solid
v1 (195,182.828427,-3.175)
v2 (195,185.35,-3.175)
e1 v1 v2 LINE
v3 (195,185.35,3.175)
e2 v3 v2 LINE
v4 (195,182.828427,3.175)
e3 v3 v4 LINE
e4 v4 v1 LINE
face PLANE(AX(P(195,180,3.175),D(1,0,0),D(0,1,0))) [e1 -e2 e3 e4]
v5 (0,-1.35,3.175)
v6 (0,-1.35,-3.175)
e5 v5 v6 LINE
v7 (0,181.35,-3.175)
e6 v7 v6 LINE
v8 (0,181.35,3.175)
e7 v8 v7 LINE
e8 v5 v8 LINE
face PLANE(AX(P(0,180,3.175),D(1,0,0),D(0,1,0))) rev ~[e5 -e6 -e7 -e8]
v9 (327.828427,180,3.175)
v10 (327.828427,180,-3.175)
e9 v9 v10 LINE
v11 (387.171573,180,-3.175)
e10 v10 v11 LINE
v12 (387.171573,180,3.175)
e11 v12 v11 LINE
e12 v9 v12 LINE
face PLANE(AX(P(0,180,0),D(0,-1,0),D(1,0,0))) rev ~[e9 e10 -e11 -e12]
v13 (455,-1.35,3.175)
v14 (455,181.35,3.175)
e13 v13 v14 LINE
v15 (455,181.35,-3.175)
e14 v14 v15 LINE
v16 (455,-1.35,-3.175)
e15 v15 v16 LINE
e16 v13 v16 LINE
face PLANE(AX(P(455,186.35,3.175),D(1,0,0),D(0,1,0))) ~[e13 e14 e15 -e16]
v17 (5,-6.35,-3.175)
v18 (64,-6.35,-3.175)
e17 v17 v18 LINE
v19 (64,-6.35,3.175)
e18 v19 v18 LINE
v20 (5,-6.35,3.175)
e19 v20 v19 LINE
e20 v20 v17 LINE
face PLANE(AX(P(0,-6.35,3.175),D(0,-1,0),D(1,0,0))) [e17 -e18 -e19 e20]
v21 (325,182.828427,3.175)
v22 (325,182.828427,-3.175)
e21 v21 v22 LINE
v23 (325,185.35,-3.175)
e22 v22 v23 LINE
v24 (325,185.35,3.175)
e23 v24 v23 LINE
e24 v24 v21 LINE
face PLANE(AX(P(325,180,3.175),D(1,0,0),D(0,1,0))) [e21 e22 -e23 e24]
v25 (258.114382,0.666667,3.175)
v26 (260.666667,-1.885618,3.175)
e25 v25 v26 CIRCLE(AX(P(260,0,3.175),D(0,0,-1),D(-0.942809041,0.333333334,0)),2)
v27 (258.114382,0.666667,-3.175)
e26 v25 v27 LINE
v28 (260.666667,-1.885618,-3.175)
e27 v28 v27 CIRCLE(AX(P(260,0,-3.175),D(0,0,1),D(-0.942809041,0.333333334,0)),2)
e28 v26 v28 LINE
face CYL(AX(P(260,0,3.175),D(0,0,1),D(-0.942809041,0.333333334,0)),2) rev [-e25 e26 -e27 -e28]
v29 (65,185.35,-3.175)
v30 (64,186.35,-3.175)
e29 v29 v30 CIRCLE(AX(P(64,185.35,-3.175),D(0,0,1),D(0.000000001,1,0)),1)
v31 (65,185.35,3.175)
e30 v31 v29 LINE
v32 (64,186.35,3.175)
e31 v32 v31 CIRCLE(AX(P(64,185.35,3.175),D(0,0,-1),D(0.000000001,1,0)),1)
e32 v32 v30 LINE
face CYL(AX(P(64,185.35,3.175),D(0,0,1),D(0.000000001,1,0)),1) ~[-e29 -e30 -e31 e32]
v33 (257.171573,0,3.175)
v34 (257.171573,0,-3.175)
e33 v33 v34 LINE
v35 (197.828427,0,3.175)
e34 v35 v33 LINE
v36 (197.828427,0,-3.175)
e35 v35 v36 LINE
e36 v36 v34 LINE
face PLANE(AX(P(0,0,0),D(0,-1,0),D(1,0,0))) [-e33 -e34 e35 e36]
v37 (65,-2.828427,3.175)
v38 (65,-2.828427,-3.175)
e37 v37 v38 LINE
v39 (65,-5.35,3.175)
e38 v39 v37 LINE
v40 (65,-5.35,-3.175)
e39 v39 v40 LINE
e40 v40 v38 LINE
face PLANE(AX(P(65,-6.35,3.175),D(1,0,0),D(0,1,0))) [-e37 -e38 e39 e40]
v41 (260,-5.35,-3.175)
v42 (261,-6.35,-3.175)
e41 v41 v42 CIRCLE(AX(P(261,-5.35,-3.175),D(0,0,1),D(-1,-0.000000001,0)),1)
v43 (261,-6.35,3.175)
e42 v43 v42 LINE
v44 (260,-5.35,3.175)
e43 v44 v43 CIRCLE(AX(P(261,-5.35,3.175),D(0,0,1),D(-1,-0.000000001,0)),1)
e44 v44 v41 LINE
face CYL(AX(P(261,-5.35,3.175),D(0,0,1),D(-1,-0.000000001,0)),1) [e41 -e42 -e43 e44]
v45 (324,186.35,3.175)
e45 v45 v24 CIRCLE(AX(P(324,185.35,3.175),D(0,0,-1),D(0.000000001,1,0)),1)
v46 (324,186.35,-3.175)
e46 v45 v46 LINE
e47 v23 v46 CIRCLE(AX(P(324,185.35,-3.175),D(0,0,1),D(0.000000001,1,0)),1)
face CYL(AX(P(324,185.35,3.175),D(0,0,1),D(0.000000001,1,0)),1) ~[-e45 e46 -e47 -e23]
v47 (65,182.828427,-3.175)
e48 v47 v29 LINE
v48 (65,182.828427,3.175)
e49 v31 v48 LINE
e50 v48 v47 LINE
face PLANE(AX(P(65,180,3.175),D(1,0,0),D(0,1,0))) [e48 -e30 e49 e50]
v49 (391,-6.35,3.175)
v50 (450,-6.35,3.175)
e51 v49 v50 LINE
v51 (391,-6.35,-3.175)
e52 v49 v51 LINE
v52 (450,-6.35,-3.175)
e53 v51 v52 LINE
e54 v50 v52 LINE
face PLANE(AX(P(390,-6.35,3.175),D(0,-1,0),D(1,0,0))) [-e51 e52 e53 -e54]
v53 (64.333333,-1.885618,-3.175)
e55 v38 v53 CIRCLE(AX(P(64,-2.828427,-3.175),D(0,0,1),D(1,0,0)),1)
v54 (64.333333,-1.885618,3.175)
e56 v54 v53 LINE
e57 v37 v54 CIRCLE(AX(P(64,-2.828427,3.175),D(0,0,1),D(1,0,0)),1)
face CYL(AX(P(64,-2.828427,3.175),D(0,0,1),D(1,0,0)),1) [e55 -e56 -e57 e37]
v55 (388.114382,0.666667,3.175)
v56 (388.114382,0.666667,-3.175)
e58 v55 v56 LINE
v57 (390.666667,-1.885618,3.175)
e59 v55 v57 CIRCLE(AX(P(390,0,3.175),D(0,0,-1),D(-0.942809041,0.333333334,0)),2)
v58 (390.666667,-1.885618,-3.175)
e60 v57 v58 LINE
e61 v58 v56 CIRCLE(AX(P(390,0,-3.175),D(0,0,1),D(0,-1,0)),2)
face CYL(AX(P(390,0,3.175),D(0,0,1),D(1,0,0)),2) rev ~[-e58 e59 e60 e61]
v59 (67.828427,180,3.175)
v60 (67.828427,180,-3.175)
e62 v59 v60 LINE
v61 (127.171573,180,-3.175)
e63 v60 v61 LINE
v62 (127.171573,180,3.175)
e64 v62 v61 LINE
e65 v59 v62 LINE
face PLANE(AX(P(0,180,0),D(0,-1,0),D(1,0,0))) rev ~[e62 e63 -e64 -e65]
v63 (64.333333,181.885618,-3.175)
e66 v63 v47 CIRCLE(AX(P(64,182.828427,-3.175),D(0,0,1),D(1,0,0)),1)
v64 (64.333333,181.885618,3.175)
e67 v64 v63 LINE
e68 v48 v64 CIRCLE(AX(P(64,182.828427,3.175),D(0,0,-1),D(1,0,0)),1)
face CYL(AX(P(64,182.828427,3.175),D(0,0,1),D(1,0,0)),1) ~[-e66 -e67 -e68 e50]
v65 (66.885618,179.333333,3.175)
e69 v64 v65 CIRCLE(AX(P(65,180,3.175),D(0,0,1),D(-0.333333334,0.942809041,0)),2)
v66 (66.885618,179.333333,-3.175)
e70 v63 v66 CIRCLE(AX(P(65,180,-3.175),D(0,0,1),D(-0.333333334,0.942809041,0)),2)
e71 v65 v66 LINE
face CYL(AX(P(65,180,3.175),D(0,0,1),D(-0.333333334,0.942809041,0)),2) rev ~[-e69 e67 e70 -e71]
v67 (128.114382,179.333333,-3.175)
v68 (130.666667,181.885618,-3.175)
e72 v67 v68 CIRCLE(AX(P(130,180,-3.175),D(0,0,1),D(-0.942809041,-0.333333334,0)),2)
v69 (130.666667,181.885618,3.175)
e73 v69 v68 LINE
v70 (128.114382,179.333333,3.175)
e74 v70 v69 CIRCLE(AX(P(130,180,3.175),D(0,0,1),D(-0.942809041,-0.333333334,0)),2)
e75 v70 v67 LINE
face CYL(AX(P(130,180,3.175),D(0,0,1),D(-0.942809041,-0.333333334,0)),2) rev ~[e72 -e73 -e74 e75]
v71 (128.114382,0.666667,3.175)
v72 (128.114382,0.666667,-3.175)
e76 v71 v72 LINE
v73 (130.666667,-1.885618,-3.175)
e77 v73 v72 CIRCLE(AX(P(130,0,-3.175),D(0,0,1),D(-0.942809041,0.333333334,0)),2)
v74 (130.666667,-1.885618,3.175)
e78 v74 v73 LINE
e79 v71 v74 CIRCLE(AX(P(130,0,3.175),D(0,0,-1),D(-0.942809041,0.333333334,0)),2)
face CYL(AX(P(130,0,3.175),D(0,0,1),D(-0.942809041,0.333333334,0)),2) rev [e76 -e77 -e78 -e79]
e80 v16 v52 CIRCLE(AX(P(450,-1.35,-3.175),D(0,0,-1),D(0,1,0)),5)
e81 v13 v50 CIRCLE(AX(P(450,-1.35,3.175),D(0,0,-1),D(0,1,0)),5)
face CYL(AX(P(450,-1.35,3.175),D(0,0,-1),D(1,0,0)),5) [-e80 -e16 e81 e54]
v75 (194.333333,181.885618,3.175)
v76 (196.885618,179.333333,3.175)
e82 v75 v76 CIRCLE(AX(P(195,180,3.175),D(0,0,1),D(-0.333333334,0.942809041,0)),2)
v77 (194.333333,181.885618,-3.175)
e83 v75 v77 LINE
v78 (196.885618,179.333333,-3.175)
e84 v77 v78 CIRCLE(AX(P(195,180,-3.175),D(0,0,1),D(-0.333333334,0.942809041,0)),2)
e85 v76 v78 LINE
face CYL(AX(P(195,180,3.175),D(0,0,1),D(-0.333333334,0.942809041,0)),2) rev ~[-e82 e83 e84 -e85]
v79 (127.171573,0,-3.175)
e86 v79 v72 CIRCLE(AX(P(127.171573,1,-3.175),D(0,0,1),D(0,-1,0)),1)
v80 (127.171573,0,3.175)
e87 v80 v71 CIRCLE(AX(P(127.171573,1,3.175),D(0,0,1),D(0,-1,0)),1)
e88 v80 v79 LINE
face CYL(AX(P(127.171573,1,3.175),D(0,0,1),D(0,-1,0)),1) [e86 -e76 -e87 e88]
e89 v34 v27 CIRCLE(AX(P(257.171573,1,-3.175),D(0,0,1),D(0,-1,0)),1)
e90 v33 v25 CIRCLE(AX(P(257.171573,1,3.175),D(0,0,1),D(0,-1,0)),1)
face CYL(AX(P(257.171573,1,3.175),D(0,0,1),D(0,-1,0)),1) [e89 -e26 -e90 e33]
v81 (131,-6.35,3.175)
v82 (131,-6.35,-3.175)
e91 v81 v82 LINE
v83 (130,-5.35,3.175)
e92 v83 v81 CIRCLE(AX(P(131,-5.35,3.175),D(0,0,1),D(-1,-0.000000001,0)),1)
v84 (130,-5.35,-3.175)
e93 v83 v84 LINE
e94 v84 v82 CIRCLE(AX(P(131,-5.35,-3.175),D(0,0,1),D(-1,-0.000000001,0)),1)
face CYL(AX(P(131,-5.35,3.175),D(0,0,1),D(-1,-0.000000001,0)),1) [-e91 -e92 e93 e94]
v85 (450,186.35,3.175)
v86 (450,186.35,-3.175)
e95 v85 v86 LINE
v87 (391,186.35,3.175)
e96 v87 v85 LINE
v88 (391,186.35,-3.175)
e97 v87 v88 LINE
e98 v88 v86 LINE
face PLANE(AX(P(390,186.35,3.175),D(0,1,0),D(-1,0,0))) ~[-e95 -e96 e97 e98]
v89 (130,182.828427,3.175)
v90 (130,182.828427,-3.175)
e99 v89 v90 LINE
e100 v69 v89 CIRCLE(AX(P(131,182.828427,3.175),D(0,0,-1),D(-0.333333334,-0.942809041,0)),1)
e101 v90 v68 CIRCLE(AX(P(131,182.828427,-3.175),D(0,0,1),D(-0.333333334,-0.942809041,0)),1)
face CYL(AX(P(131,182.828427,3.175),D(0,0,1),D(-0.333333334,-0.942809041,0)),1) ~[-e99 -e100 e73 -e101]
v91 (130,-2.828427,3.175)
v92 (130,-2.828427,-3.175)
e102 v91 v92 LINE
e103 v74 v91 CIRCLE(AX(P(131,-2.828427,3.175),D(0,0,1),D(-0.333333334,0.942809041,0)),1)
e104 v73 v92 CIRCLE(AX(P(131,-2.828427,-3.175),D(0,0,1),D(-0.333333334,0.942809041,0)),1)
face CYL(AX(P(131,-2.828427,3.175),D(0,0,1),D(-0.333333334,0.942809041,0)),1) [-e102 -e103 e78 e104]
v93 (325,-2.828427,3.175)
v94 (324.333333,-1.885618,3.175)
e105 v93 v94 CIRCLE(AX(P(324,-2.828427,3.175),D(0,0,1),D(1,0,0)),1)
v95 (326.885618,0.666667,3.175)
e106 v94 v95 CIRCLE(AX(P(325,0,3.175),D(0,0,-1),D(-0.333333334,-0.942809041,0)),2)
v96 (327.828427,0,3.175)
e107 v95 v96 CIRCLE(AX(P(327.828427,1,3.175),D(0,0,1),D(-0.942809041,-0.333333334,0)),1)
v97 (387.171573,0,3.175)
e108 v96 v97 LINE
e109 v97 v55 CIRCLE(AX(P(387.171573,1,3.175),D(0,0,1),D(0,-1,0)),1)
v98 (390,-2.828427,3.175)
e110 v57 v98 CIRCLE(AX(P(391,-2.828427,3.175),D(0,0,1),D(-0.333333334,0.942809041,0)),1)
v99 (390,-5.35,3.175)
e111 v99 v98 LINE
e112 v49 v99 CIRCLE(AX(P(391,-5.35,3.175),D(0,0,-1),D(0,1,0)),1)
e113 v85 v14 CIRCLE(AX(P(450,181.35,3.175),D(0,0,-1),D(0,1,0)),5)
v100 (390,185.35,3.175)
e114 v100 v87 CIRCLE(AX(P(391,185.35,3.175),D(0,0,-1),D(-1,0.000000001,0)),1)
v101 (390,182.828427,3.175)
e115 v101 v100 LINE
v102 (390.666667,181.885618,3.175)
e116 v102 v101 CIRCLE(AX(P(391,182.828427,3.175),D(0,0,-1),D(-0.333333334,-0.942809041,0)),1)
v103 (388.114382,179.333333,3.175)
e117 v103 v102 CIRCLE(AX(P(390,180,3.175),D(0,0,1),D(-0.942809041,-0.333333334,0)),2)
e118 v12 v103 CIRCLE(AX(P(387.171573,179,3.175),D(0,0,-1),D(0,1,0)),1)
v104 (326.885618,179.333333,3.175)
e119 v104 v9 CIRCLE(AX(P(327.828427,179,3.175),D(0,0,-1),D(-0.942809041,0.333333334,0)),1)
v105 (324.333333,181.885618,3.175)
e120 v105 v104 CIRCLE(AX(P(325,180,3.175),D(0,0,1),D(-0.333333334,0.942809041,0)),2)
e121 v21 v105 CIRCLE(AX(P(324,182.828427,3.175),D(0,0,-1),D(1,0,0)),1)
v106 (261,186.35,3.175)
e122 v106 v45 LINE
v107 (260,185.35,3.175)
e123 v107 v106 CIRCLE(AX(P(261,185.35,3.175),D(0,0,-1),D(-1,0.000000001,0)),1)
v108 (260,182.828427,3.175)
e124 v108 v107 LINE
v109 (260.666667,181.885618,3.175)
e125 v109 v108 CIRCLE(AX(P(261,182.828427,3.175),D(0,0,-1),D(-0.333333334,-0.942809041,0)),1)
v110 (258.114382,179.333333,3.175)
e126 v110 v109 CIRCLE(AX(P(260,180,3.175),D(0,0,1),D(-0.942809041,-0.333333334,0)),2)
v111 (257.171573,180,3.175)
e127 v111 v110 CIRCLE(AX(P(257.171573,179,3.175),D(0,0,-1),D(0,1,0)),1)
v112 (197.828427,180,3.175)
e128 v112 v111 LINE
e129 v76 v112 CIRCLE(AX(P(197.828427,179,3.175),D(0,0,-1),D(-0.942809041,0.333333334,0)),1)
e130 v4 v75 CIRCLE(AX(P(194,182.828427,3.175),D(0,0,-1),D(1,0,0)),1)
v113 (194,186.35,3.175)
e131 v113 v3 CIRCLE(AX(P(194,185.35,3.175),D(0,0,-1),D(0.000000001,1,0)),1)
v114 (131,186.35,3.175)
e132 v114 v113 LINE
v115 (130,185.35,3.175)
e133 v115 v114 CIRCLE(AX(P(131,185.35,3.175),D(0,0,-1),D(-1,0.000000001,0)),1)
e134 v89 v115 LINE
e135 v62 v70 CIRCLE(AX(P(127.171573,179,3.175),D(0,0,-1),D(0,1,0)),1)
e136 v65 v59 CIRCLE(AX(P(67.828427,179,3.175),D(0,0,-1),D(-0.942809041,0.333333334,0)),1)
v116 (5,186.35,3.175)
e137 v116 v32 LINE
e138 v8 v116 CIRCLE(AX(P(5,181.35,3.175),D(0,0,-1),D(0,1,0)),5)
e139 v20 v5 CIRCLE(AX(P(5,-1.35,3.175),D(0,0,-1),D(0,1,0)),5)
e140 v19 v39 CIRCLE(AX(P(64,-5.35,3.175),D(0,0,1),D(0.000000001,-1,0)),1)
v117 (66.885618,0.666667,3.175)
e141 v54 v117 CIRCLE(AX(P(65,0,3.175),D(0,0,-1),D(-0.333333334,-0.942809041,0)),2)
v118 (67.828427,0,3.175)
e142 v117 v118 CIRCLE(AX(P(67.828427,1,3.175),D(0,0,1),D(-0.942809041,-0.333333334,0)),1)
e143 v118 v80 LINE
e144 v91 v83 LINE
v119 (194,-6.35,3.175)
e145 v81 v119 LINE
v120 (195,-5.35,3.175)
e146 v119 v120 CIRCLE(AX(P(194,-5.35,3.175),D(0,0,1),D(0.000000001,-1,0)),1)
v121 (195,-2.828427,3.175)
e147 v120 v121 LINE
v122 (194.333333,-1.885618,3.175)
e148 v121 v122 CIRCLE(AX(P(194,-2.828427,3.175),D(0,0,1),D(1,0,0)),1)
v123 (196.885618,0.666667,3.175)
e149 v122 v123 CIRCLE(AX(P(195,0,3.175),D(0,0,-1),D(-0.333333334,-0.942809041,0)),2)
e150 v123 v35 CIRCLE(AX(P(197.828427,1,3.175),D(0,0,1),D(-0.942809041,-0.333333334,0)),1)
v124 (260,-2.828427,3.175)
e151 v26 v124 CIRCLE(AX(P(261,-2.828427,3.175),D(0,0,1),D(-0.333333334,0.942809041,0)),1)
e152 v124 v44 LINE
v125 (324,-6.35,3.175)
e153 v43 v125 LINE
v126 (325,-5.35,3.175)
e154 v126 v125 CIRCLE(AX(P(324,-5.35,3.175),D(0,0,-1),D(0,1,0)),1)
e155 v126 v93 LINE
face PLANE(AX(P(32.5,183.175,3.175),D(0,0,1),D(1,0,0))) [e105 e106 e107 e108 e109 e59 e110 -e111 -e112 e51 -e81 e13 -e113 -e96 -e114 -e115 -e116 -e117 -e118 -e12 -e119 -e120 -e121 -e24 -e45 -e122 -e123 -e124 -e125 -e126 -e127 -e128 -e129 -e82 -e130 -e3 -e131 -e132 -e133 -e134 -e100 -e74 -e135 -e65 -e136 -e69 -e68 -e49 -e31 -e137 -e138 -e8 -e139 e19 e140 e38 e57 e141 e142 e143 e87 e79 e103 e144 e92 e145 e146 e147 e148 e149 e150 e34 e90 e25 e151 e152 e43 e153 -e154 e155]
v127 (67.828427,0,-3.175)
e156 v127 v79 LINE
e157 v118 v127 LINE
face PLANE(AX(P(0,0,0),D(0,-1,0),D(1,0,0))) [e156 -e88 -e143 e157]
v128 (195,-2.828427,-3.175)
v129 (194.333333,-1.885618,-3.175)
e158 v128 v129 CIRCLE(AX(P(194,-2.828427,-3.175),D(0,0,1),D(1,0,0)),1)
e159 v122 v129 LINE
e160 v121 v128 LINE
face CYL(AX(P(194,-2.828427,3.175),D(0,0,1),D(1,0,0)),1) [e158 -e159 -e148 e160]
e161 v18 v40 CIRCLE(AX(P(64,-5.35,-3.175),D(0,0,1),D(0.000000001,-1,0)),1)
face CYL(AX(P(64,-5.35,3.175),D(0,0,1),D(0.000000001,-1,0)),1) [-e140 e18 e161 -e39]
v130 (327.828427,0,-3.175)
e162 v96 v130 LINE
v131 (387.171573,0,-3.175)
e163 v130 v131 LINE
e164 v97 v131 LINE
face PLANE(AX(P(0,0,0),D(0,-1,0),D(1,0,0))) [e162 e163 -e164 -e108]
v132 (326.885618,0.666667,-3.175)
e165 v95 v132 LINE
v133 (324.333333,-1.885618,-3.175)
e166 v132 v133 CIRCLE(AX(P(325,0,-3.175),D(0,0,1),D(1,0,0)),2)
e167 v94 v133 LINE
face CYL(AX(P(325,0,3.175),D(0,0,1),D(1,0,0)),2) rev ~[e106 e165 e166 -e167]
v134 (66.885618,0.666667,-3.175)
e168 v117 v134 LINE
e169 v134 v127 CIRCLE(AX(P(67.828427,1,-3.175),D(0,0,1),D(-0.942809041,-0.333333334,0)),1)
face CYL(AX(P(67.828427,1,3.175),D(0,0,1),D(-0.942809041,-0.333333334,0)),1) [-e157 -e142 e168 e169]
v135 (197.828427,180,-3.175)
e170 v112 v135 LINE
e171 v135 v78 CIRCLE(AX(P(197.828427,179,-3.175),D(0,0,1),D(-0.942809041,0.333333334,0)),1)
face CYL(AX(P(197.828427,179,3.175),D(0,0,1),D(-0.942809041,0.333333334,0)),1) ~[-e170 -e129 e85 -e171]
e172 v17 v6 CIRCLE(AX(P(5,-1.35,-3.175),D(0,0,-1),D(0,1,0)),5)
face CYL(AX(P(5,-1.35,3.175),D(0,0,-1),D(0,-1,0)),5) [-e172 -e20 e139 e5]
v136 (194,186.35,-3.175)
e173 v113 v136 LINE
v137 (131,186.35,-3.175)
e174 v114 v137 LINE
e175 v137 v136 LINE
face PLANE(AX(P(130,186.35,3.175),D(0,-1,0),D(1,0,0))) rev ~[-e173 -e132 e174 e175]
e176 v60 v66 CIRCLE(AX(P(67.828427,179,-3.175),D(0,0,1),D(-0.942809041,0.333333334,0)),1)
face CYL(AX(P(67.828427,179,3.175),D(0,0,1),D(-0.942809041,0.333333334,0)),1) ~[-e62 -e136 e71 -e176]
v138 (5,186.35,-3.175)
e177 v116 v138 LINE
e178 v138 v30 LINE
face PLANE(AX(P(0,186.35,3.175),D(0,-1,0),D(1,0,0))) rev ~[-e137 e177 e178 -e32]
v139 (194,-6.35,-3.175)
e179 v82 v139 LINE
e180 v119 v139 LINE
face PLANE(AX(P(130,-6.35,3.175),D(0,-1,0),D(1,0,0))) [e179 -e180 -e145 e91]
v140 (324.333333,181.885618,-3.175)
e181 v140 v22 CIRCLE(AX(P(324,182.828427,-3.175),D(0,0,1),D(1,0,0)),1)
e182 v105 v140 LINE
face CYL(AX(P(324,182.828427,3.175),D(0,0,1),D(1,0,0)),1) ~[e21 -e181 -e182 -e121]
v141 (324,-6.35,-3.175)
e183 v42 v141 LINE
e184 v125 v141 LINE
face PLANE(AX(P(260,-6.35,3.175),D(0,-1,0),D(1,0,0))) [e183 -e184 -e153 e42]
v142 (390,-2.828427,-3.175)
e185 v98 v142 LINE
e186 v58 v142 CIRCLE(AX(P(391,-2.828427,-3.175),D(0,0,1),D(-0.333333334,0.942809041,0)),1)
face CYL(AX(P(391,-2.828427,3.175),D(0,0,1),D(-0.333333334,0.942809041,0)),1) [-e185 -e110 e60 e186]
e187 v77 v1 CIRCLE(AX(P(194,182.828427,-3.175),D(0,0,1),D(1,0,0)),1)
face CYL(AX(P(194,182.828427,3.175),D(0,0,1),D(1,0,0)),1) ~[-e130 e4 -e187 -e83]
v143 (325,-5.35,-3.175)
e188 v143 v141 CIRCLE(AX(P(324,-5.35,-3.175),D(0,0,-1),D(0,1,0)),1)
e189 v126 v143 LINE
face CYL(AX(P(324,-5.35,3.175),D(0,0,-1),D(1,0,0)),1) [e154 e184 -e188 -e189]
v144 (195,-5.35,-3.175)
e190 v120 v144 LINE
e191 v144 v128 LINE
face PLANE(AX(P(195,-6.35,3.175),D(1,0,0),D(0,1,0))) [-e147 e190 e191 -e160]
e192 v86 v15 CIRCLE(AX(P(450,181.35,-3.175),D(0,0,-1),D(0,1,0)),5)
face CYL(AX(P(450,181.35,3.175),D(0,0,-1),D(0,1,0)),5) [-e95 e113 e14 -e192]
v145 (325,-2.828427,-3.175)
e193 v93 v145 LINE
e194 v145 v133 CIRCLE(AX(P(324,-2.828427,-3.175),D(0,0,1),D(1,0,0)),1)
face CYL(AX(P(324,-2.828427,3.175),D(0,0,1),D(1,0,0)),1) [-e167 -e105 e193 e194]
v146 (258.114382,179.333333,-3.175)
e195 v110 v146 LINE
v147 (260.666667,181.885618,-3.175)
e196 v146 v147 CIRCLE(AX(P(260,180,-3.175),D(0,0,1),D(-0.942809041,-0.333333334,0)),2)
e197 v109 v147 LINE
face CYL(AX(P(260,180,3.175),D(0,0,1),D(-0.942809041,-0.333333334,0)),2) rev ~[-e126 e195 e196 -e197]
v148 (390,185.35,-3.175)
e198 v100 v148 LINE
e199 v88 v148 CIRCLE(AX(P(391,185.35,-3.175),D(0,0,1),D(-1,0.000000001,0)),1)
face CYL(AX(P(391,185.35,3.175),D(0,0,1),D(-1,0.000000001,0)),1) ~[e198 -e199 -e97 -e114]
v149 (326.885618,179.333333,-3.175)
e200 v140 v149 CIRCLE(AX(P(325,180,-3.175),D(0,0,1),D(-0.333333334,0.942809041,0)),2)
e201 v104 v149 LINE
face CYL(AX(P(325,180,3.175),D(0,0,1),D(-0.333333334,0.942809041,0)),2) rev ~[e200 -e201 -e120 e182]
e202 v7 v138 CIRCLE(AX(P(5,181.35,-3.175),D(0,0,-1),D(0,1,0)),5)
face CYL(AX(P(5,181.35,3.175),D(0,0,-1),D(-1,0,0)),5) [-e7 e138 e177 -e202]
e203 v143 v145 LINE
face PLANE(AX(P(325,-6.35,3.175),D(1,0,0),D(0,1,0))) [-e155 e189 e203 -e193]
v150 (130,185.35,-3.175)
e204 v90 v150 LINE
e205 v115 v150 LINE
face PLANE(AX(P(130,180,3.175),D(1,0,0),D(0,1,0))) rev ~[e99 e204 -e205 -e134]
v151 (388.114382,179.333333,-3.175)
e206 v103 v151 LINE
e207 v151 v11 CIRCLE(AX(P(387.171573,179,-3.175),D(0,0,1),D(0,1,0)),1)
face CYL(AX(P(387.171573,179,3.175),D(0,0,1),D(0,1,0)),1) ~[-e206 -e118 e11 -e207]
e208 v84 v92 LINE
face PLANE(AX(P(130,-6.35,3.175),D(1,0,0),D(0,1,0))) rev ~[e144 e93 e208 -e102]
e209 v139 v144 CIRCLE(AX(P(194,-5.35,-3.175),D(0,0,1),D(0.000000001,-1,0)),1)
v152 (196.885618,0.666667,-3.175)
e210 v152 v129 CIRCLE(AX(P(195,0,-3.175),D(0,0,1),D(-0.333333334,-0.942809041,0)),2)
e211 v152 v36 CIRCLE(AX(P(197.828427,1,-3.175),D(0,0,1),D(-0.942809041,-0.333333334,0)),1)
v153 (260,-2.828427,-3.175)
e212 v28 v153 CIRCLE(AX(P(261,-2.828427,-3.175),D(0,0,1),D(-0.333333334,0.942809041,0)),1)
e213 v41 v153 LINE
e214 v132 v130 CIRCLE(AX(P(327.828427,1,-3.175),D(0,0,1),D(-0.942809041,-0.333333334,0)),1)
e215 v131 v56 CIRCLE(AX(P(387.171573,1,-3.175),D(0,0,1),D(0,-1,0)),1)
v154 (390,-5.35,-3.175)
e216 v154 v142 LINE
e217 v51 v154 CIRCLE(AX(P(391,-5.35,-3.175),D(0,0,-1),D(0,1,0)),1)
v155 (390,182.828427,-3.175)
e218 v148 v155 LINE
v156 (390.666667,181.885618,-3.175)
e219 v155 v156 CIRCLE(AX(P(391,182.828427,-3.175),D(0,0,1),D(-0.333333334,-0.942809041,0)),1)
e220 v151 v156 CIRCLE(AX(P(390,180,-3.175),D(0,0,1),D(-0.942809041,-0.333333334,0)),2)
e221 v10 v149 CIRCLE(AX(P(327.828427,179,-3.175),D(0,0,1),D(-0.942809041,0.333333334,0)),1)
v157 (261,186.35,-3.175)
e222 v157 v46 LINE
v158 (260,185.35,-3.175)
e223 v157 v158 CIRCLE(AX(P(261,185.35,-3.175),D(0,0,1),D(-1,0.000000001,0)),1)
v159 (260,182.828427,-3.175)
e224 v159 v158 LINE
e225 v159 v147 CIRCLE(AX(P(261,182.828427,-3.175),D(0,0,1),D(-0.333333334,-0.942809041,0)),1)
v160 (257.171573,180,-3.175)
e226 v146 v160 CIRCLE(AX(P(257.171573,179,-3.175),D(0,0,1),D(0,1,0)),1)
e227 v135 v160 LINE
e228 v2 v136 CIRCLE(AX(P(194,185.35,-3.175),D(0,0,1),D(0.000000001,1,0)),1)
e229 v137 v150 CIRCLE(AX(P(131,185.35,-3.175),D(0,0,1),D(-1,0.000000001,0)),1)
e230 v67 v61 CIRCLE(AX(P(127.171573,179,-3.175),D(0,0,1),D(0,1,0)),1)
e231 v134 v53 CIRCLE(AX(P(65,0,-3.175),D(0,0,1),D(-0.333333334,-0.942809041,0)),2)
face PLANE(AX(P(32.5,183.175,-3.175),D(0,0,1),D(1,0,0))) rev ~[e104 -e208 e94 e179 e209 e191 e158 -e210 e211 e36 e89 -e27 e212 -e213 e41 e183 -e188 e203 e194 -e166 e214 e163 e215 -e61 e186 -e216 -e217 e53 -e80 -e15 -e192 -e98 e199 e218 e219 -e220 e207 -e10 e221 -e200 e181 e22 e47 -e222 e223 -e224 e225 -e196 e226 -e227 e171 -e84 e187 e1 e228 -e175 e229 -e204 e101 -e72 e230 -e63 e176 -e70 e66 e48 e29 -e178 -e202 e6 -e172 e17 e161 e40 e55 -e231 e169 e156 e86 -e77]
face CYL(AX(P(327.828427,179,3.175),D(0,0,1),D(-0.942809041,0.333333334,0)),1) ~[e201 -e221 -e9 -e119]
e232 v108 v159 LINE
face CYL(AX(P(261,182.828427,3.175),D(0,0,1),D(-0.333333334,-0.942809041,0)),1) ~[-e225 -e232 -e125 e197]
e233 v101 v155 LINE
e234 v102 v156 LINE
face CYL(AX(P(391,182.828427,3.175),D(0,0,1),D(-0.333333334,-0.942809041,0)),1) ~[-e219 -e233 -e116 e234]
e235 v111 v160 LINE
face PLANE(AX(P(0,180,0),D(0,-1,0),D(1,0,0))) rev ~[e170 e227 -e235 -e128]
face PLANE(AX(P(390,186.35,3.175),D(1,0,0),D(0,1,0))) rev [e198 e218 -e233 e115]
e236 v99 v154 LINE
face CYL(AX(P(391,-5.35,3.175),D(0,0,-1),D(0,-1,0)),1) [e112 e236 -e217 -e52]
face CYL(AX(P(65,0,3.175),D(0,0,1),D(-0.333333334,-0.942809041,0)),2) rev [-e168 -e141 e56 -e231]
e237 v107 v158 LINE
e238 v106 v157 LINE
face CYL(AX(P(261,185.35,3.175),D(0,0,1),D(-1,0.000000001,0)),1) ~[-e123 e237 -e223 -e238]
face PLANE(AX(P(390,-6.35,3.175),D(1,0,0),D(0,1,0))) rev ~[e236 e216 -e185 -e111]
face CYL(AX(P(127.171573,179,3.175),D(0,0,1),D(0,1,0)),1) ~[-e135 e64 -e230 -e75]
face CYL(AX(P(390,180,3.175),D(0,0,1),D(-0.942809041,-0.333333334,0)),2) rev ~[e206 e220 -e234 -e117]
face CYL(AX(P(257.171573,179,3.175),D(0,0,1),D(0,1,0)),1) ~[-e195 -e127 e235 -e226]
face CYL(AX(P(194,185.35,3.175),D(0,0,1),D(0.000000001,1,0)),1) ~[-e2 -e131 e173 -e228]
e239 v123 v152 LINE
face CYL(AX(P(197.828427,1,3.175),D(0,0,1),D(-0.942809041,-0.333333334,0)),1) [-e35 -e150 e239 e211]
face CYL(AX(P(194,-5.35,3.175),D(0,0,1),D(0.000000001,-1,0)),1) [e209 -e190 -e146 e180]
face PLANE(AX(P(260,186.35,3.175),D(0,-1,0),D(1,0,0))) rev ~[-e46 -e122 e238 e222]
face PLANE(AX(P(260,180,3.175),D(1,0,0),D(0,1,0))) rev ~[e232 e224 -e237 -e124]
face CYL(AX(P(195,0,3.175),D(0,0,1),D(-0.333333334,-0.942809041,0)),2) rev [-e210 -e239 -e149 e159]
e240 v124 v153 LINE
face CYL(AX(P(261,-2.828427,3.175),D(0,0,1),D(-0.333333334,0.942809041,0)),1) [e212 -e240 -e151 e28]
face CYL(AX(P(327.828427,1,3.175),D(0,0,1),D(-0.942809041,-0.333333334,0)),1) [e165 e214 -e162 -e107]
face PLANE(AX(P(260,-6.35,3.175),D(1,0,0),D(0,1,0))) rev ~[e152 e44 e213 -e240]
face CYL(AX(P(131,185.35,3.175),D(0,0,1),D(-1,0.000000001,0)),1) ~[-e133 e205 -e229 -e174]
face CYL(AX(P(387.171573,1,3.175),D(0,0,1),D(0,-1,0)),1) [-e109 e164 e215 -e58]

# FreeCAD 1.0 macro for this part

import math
import FreeCAD as App
import Part
import Sketcher
from FreeCAD import Vector
Q = App.Units.Quantity


def edges_at(feature, points):
    """Names of the edges that pass closest to the given points."""
    edges = feature.Shape.Edges
    near = lambda p: min(range(len(edges)), key=lambda i: edges[i].distToShape(Part.Vertex(*p))[0])
    return sorted({f"Edge{near(p) + 1}" for p in points})

doc = App.newDocument("Part")
params = doc.addObject("Spreadsheet::Sheet", "Params")
for row, (alias, value) in enumerate([
    ("sketch1_width", "455 mm"),
    ("sketch1_height", "180 mm"),
    ("pad1_length", "6.35 mm"),
    ("sketch2_width", "65 mm"),
    ("sketch2_height", "6.35 mm"),
    ("pad2_length", "6.35 mm"),
    ("linearpattern_pitch", "130 mm"),
    ("sketch3_width", "65 mm"),
    ("sketch3_height", "6.35 mm"),
    ("pad3_length", "6.35 mm"),
    ("sketch4_width", "65 mm"),
    ("sketch4_height", "6.35 mm"),
    ("pad4_length", "6.35 mm"),
    ("sketch5_width", "65 mm"),
    ("sketch5_height", "6.35 mm"),
    ("pad5_length", "6.35 mm"),
    ("sketch6_diameter", "4 mm"),
    ("fillet_radius", "1 mm"),
    ("sketch7_radius", "1 mm"),
    ("sketch7_radius2", "2 mm"),
    ("sketch7_width", "67 mm"),
    ("linearpattern2_pitch", "130 mm"),
    ("sketch8_radius", "1 mm"),
    ("sketch8_radius2", "2 mm"),
    ("sketch8_width", "67 mm"),
    ("sketch9_radius", "1 mm"),
    ("sketch9_radius2", "2 mm"),
    ("sketch9_width", "67 mm"),
    ("fillet2_radius", "5 mm"),
], start=1):
    params.set(f"A{row}", alias)
    params.set(f"B{row}", "=" + value)
    params.setAlias(f"B{row}", alias)

body = doc.addObject("PartDesign::Body", "Body")

# Sketch on XY plane
sketch1 = doc.addObject("Sketcher::SketchObject", "Sketch")
body.addObject(sketch1)
sketch1.AttachmentSupport = (doc.XY_Plane, [""])
sketch1.MapMode = "FlatFace"
sketch1.addGeometry(Part.LineSegment(Vector(0, 180, 0), Vector(0, 0, 0)), False)
sketch1.addGeometry(Part.LineSegment(Vector(0, 0, 0), Vector(455, 0, 0)), False)
sketch1.addGeometry(Part.LineSegment(Vector(455, 0, 0), Vector(455, 180, 0)), False)
sketch1.addGeometry(Part.LineSegment(Vector(455, 180, 0), Vector(0, 180, 0)), False)
sketch1.addConstraint(Sketcher.Constraint("Coincident", 0, 2, 1, 1))
sketch1.addConstraint(Sketcher.Constraint("Coincident", 1, 2, 2, 1))
sketch1.addConstraint(Sketcher.Constraint("Coincident", 2, 2, 3, 1))
sketch1.addConstraint(Sketcher.Constraint("Coincident", 3, 2, 0, 1))
sketch1.addConstraint(Sketcher.Constraint("Vertical", 0))
sketch1.addConstraint(Sketcher.Constraint("Horizontal", 1))
sketch1.addConstraint(Sketcher.Constraint("Vertical", 2))
sketch1.addConstraint(Sketcher.Constraint("Horizontal", 3))
sketch1.addConstraint(Sketcher.Constraint("Coincident", 0, 2, -1, 1))
sketch1.addConstraint(Sketcher.Constraint("DistanceX", 1, 1, 1, 2, Q("455 mm")))
sketch1.addConstraint(Sketcher.Constraint("DistanceY", 0, 2, 0, 1, Q("180 mm")))
sketch1.setExpression("Constraints[9]", "Params.sketch1_width")
sketch1.setExpression("Constraints[10]", "Params.sketch1_height")
pad1 = doc.addObject("PartDesign::Pad", "Pad")
body.addObject(pad1)
pad1.Profile = sketch1
pad1.setExpression("Length", "Params.pad1_length")
pad1.Midplane = True

# Sketch on XY plane
sketch2 = doc.addObject("Sketcher::SketchObject", "Sketch001")
body.addObject(sketch2)
sketch2.AttachmentSupport = (doc.XY_Plane, [""])
sketch2.MapMode = "FlatFace"
sketch2.AttachmentOffset = App.Placement(Vector(0, 0, 3.175), App.Rotation())
sketch2.addGeometry(Part.LineSegment(Vector(390, 0, 0), Vector(390, -6, 0)), False)
sketch2.addGeometry(Part.LineSegment(Vector(390, -6, 0), Vector(455, -6, 0)), False)
sketch2.addGeometry(Part.LineSegment(Vector(455, -6, 0), Vector(455, 0, 0)), False)
sketch2.addGeometry(Part.LineSegment(Vector(455, 0, 0), Vector(390, 0, 0)), False)
sketch2.addConstraint(Sketcher.Constraint("Coincident", 0, 2, 1, 1))
sketch2.addConstraint(Sketcher.Constraint("Coincident", 1, 2, 2, 1))
sketch2.addConstraint(Sketcher.Constraint("Coincident", 2, 2, 3, 1))
sketch2.addConstraint(Sketcher.Constraint("Coincident", 3, 2, 0, 1))
sketch2.addConstraint(Sketcher.Constraint("Vertical", 0))
sketch2.addConstraint(Sketcher.Constraint("Horizontal", 1))
sketch2.addConstraint(Sketcher.Constraint("Vertical", 2))
sketch2.addConstraint(Sketcher.Constraint("Horizontal", 3))
sketch2.addConstraint(Sketcher.Constraint("PointOnObject", 2, 2, -1))
sketch2.addConstraint(Sketcher.Constraint("DistanceX", 1, 1, 1, 2, Q("65 mm")))
sketch2.addConstraint(Sketcher.Constraint("DistanceX", -1, 1, 0, 2, Q("390 mm")))
sketch2.addConstraint(Sketcher.Constraint("DistanceY", 0, 2, 0, 1, Q("6.35 mm")))
sketch2.setExpression("Constraints[9]", "Params.sketch2_width")
sketch2.setExpression("Constraints[11]", "Params.sketch2_height")
pad2 = doc.addObject("PartDesign::Pad", "Pad001")
body.addObject(pad2)
pad2.Profile = sketch2
pad2.setExpression("Length", "Params.pad2_length")
pad2.Reversed = True
doc.recompute()

linearpattern = doc.addObject("PartDesign::LinearPattern", "LinearPattern")
body.addObject(linearpattern)
linearpattern.Originals = [pad2]
linearpattern.Direction = (doc.X_Axis, [""])
linearpattern.Mode = "offset"
linearpattern.setExpression("Offset", "Params.linearpattern_pitch")
linearpattern.Occurrences = 4
linearpattern.Reversed = True
body.Tip = linearpattern
doc.recompute()

datumplane = doc.addObject("PartDesign::Plane", "DatumPlane")
body.addObject(datumplane)
datumplane.AttachmentSupport = (doc.XZ_Plane, [""])
datumplane.MapMode = "FlatFace"
datumplane.AttachmentOffset = App.Placement(Vector(0, 0, -90), App.Rotation())
mirrored = doc.addObject("PartDesign::Mirrored", "Mirrored")
body.addObject(mirrored)
mirrored.Originals = [pad2]
mirrored.MirrorPlane = (datumplane, [""])
body.Tip = mirrored

# Sketch on XY plane
sketch3 = doc.addObject("Sketcher::SketchObject", "Sketch002")
body.addObject(sketch3)
sketch3.AttachmentSupport = (doc.XY_Plane, [""])
sketch3.MapMode = "FlatFace"
sketch3.AttachmentOffset = App.Placement(Vector(0, 0, 3.175), App.Rotation())
sketch3.addGeometry(Part.LineSegment(Vector(260, 186, 0), Vector(260, 180, 0)), False)
sketch3.addGeometry(Part.LineSegment(Vector(260, 180, 0), Vector(325, 180, 0)), False)
sketch3.addGeometry(Part.LineSegment(Vector(325, 180, 0), Vector(325, 186, 0)), False)
sketch3.addGeometry(Part.LineSegment(Vector(325, 186, 0), Vector(260, 186, 0)), False)
sketch3.addConstraint(Sketcher.Constraint("Coincident", 0, 2, 1, 1))
sketch3.addConstraint(Sketcher.Constraint("Coincident", 1, 2, 2, 1))
sketch3.addConstraint(Sketcher.Constraint("Coincident", 2, 2, 3, 1))
sketch3.addConstraint(Sketcher.Constraint("Coincident", 3, 2, 0, 1))
sketch3.addConstraint(Sketcher.Constraint("Vertical", 0))
sketch3.addConstraint(Sketcher.Constraint("Horizontal", 1))
sketch3.addConstraint(Sketcher.Constraint("Vertical", 2))
sketch3.addConstraint(Sketcher.Constraint("Horizontal", 3))
sketch3.addConstraint(Sketcher.Constraint("DistanceX", 1, 1, 1, 2, Q("65 mm")))
sketch3.addConstraint(Sketcher.Constraint("DistanceX", -1, 1, 0, 2, Q("260 mm")))
sketch3.addConstraint(Sketcher.Constraint("DistanceY", -1, 1, 0, 2, Q("180 mm")))
sketch3.addConstraint(Sketcher.Constraint("DistanceY", 0, 2, 0, 1, Q("6.35 mm")))
sketch3.setExpression("Constraints[8]", "Params.sketch3_width")
sketch3.setExpression("Constraints[11]", "Params.sketch3_height")
pad3 = doc.addObject("PartDesign::Pad", "Pad002")
body.addObject(pad3)
pad3.Profile = sketch3
pad3.setExpression("Length", "Params.pad3_length")
pad3.Reversed = True

# Sketch on XY plane
sketch4 = doc.addObject("Sketcher::SketchObject", "Sketch003")
body.addObject(sketch4)
sketch4.AttachmentSupport = (doc.XY_Plane, [""])
sketch4.MapMode = "FlatFace"
sketch4.AttachmentOffset = App.Placement(Vector(0, 0, 3.175), App.Rotation())
sketch4.addGeometry(Part.LineSegment(Vector(130, 186, 0), Vector(130, 180, 0)), False)
sketch4.addGeometry(Part.LineSegment(Vector(130, 180, 0), Vector(195, 180, 0)), False)
sketch4.addGeometry(Part.LineSegment(Vector(195, 180, 0), Vector(195, 186, 0)), False)
sketch4.addGeometry(Part.LineSegment(Vector(195, 186, 0), Vector(130, 186, 0)), False)
sketch4.addConstraint(Sketcher.Constraint("Coincident", 0, 2, 1, 1))
sketch4.addConstraint(Sketcher.Constraint("Coincident", 1, 2, 2, 1))
sketch4.addConstraint(Sketcher.Constraint("Coincident", 2, 2, 3, 1))
sketch4.addConstraint(Sketcher.Constraint("Coincident", 3, 2, 0, 1))
sketch4.addConstraint(Sketcher.Constraint("Vertical", 0))
sketch4.addConstraint(Sketcher.Constraint("Horizontal", 1))
sketch4.addConstraint(Sketcher.Constraint("Vertical", 2))
sketch4.addConstraint(Sketcher.Constraint("Horizontal", 3))
sketch4.addConstraint(Sketcher.Constraint("DistanceX", 1, 1, 1, 2, Q("65 mm")))
sketch4.addConstraint(Sketcher.Constraint("DistanceX", -1, 1, 0, 2, Q("130 mm")))
sketch4.addConstraint(Sketcher.Constraint("DistanceY", -1, 1, 0, 2, Q("180 mm")))
sketch4.addConstraint(Sketcher.Constraint("DistanceY", 0, 2, 0, 1, Q("6.35 mm")))
sketch4.setExpression("Constraints[8]", "Params.sketch4_width")
sketch4.setExpression("Constraints[11]", "Params.sketch4_height")
pad4 = doc.addObject("PartDesign::Pad", "Pad003")
body.addObject(pad4)
pad4.Profile = sketch4
pad4.setExpression("Length", "Params.pad4_length")
pad4.Reversed = True

# Sketch on XY plane
sketch5 = doc.addObject("Sketcher::SketchObject", "Sketch004")
body.addObject(sketch5)
sketch5.AttachmentSupport = (doc.XY_Plane, [""])
sketch5.MapMode = "FlatFace"
sketch5.AttachmentOffset = App.Placement(Vector(0, 0, 3.175), App.Rotation())
sketch5.addGeometry(Part.LineSegment(Vector(0, 186, 0), Vector(0, 180, 0)), False)
sketch5.addGeometry(Part.LineSegment(Vector(0, 180, 0), Vector(65, 180, 0)), False)
sketch5.addGeometry(Part.LineSegment(Vector(65, 180, 0), Vector(65, 186, 0)), False)
sketch5.addGeometry(Part.LineSegment(Vector(65, 186, 0), Vector(0, 186, 0)), False)
sketch5.addConstraint(Sketcher.Constraint("Coincident", 0, 2, 1, 1))
sketch5.addConstraint(Sketcher.Constraint("Coincident", 1, 2, 2, 1))
sketch5.addConstraint(Sketcher.Constraint("Coincident", 2, 2, 3, 1))
sketch5.addConstraint(Sketcher.Constraint("Coincident", 3, 2, 0, 1))
sketch5.addConstraint(Sketcher.Constraint("Vertical", 0))
sketch5.addConstraint(Sketcher.Constraint("Horizontal", 1))
sketch5.addConstraint(Sketcher.Constraint("Vertical", 2))
sketch5.addConstraint(Sketcher.Constraint("Horizontal", 3))
sketch5.addConstraint(Sketcher.Constraint("PointOnObject", 0, 2, -2))
sketch5.addConstraint(Sketcher.Constraint("DistanceX", 1, 1, 1, 2, Q("65 mm")))
sketch5.addConstraint(Sketcher.Constraint("DistanceY", -1, 1, 0, 2, Q("180 mm")))
sketch5.addConstraint(Sketcher.Constraint("DistanceY", 0, 2, 0, 1, Q("6.35 mm")))
sketch5.setExpression("Constraints[9]", "Params.sketch5_width")
sketch5.setExpression("Constraints[11]", "Params.sketch5_height")
pad5 = doc.addObject("PartDesign::Pad", "Pad004")
body.addObject(pad5)
pad5.Profile = sketch5
pad5.setExpression("Length", "Params.pad5_length")
pad5.Reversed = True

# Sketch on XY plane
sketch6 = doc.addObject("Sketcher::SketchObject", "Sketch005")
body.addObject(sketch6)
sketch6.AttachmentSupport = (doc.XY_Plane, [""])
sketch6.MapMode = "FlatFace"
sketch6.AttachmentOffset = App.Placement(Vector(0, 0, 3.175), App.Rotation())
sketch6.addGeometry(Part.Circle(Vector(325, 0, 0), Vector(0, 0, 1), 2), False)
sketch6.addGeometry(Part.Circle(Vector(390, 0, 0), Vector(0, 0, 1), 2), False)
sketch6.addConstraint(Sketcher.Constraint("Equal", 0, 1))
sketch6.addConstraint(Sketcher.Constraint("PointOnObject", 0, 3, -1))
sketch6.addConstraint(Sketcher.Constraint("PointOnObject", 1, 3, -1))
sketch6.addConstraint(Sketcher.Constraint("Diameter", 0, Q("4 mm")))
sketch6.addConstraint(Sketcher.Constraint("DistanceX", -1, 1, 0, 3, Q("325 mm")))
sketch6.addConstraint(Sketcher.Constraint("DistanceX", -1, 1, 1, 3, Q("390 mm")))
sketch6.setExpression("Constraints[3]", "Params.sketch6_diameter")
pocket1 = doc.addObject("PartDesign::Pocket", "Pocket")
body.addObject(pocket1)
pocket1.Profile = sketch6
pocket1.Type = "ThroughAll"
doc.recompute()

fillet = doc.addObject("PartDesign::Fillet", "Fillet")
body.addObject(fillet)
fillet.Base = (pocket1, edges_at(pocket1, [(390, -6.35, 0), (325, -6.35, 0)]))
fillet.setExpression("Radius", "Params.fillet_radius")

# Sketch on XY plane
sketch7 = doc.addObject("Sketcher::SketchObject", "Sketch006")
body.addObject(sketch7)
sketch7.AttachmentSupport = (doc.XY_Plane, [""])
sketch7.MapMode = "FlatFace"
sketch7.AttachmentOffset = App.Placement(Vector(0, 0, 3.175), App.Rotation())
sketch7.addGeometry(Part.LineSegment(Vector(390, -5.3, 0), Vector(390, -2.8, 0)), False)
sketch7.addGeometry(Part.ArcOfCircle(Part.Circle(Vector(391, -2.8, 0), Vector(0, 0, 1), 1), math.radians(109), math.radians(180)), False)
sketch7.addGeometry(Part.ArcOfCircle(Part.Circle(Vector(390, 0, 0), Vector(0, 0, 1), 2), math.radians(-71), math.radians(161)), False)
sketch7.addGeometry(Part.ArcOfCircle(Part.Circle(Vector(387.2, 1, 0), Vector(0, 0, 1), 1), math.radians(-90), math.radians(-19)), False)
sketch7.addGeometry(Part.LineSegment(Vector(387.2, 0, 0), Vector(327.8, 0, 0)), False)
sketch7.addGeometry(Part.ArcOfCircle(Part.Circle(Vector(327.8, 1, 0), Vector(0, 0, 1), 1), math.radians(-161), math.radians(-90)), False)
sketch7.addGeometry(Part.ArcOfCircle(Part.Circle(Vector(325, 0, 0), Vector(0, 0, 1), 2), math.radians(19), math.radians(251)), False)
sketch7.addGeometry(Part.ArcOfCircle(Part.Circle(Vector(324, -2.8, 0), Vector(0, 0, 1), 1), math.radians(0), math.radians(71)), False)
sketch7.addGeometry(Part.LineSegment(Vector(325, -2.8, 0), Vector(325, -5.3, 0)), False)
sketch7.addGeometry(Part.ArcOfCircle(Part.Circle(Vector(324, -5.3, 0), Vector(0, 0, 1), 1), math.radians(-90), math.radians(0)), False)
sketch7.addGeometry(Part.LineSegment(Vector(324, -6.3, 0), Vector(391, -6.3, 0)), False)
sketch7.addGeometry(Part.ArcOfCircle(Part.Circle(Vector(391, -5.3, 0), Vector(0, 0, 1), 1), math.radians(-180), math.radians(-90)), False)
sketch7.addConstraint(Sketcher.Constraint("Tangent", 0, 2, 1, 2))
sketch7.addConstraint(Sketcher.Constraint("Tangent", 1, 1, 2, 1))
sketch7.addConstraint(Sketcher.Constraint("Tangent", 2, 2, 3, 2))
sketch7.addConstraint(Sketcher.Constraint("Tangent", 3, 1, 4, 1))
sketch7.addConstraint(Sketcher.Constraint("Tangent", 4, 2, 5, 2))
sketch7.addConstraint(Sketcher.Constraint("Tangent", 5, 1, 6, 1))
sketch7.addConstraint(Sketcher.Constraint("Tangent", 6, 2, 7, 2))
sketch7.addConstraint(Sketcher.Constraint("Tangent", 7, 1, 8, 1))
sketch7.addConstraint(Sketcher.Constraint("Tangent", 8, 2, 9, 2))
sketch7.addConstraint(Sketcher.Constraint("Tangent", 9, 1, 10, 1))
sketch7.addConstraint(Sketcher.Constraint("Tangent", 10, 2, 11, 2))
sketch7.addConstraint(Sketcher.Constraint("Tangent", 11, 1, 0, 1))
sketch7.addConstraint(Sketcher.Constraint("Vertical", 0))
sketch7.addConstraint(Sketcher.Constraint("Horizontal", 4))
sketch7.addConstraint(Sketcher.Constraint("Vertical", 8))
sketch7.addConstraint(Sketcher.Constraint("Horizontal", 10))
sketch7.addConstraint(Sketcher.Constraint("Equal", 1, 3))
sketch7.addConstraint(Sketcher.Constraint("Equal", 3, 5))
sketch7.addConstraint(Sketcher.Constraint("Equal", 2, 6))
sketch7.addConstraint(Sketcher.Constraint("Equal", 5, 7))
sketch7.addConstraint(Sketcher.Constraint("Equal", 7, 9))
sketch7.addConstraint(Sketcher.Constraint("Equal", 9, 11))
sketch7.addConstraint(Sketcher.Constraint("PointOnObject", 2, 3, -1))
sketch7.addConstraint(Sketcher.Constraint("PointOnObject", 6, 3, -1))
sketch7.addConstraint(Sketcher.Constraint("PointOnObject", 3, 1, -1))
sketch7.addConstraint(Sketcher.Constraint("Horizontal", 1, 3, 7, 3))
sketch7.addConstraint(Sketcher.Constraint("Vertical", 2, 3, 0, 2))
sketch7.addConstraint(Sketcher.Constraint("Radius", 1, Q("1 mm")))
sketch7.addConstraint(Sketcher.Constraint("Radius", 2, Q("2 mm")))
sketch7.addConstraint(Sketcher.Constraint("DistanceX", 10, 1, 10, 2, Q("67 mm")))
sketch7.addConstraint(Sketcher.Constraint("DistanceX", -1, 1, 1, 3, Q("391 mm")))
sketch7.addConstraint(Sketcher.Constraint("DistanceY", 9, 3, -1, 1, Q("5.35 mm")))
sketch7.setExpression("Constraints[27]", "Params.sketch7_radius")
sketch7.setExpression("Constraints[28]", "Params.sketch7_radius2")
sketch7.setExpression("Constraints[29]", "Params.sketch7_width")
pocket2 = doc.addObject("PartDesign::Pocket", "Pocket001")
body.addObject(pocket2)
pocket2.Profile = sketch7
pocket2.Type = "ThroughAll"
doc.recompute()

linearpattern2 = doc.addObject("PartDesign::LinearPattern", "LinearPattern001")
body.addObject(linearpattern2)
linearpattern2.Originals = [pocket2]
linearpattern2.Direction = (doc.X_Axis, [""])
linearpattern2.Mode = "offset"
linearpattern2.setExpression("Offset", "Params.linearpattern2_pitch")
linearpattern2.Occurrences = 3
linearpattern2.Reversed = True
body.Tip = linearpattern2
doc.recompute()

datumplane2 = doc.addObject("PartDesign::Plane", "DatumPlane001")
body.addObject(datumplane2)
datumplane2.AttachmentSupport = (doc.XZ_Plane, [""])
datumplane2.MapMode = "FlatFace"
datumplane2.AttachmentOffset = App.Placement(Vector(0, 0, -90), App.Rotation())
mirrored2 = doc.addObject("PartDesign::Mirrored", "Mirrored001")
body.addObject(mirrored2)
mirrored2.Originals = [pocket2]
mirrored2.MirrorPlane = (datumplane2, [""])
body.Tip = mirrored2

# Sketch on XY plane
sketch8 = doc.addObject("Sketcher::SketchObject", "Sketch007")
body.addObject(sketch8)
sketch8.AttachmentSupport = (doc.XY_Plane, [""])
sketch8.MapMode = "FlatFace"
sketch8.AttachmentOffset = App.Placement(Vector(0, 0, 3.175), App.Rotation())
sketch8.addGeometry(Part.LineSegment(Vector(260, 182.8, 0), Vector(260, 185.3, 0)), False)
sketch8.addGeometry(Part.ArcOfCircle(Part.Circle(Vector(261, 185.3, 0), Vector(0, 0, 1), 1), math.radians(90), math.radians(180)), False)
sketch8.addGeometry(Part.LineSegment(Vector(261, 186.3, 0), Vector(194, 186.3, 0)), False)
sketch8.addGeometry(Part.ArcOfCircle(Part.Circle(Vector(194, 185.3, 0), Vector(0, 0, 1), 1), math.radians(0), math.radians(90)), False)
sketch8.addGeometry(Part.LineSegment(Vector(195, 185.3, 0), Vector(195, 182.8, 0)), False)
sketch8.addGeometry(Part.ArcOfCircle(Part.Circle(Vector(194, 182.8, 0), Vector(0, 0, 1), 1), math.radians(-71), math.radians(0)), False)
sketch8.addGeometry(Part.ArcOfCircle(Part.Circle(Vector(195, 180, 0), Vector(0, 0, 1), 2), math.radians(109), math.radians(341)), False)
sketch8.addGeometry(Part.ArcOfCircle(Part.Circle(Vector(197.8, 179, 0), Vector(0, 0, 1), 1), math.radians(90), math.radians(161)), False)
sketch8.addGeometry(Part.LineSegment(Vector(197.8, 180, 0), Vector(257.2, 180, 0)), False)
sketch8.addGeometry(Part.ArcOfCircle(Part.Circle(Vector(257.2, 179, 0), Vector(0, 0, 1), 1), math.radians(19), math.radians(90)), False)
sketch8.addGeometry(Part.ArcOfCircle(Part.Circle(Vector(260, 180, 0), Vector(0, 0, 1), 2), math.radians(-161), math.radians(71)), False)
sketch8.addGeometry(Part.ArcOfCircle(Part.Circle(Vector(261, 182.8, 0), Vector(0, 0, 1), 1), math.radians(180), math.radians(251)), False)
sketch8.addConstraint(Sketcher.Constraint("Tangent", 0, 2, 1, 2))
sketch8.addConstraint(Sketcher.Constraint("Tangent", 1, 1, 2, 1))
sketch8.addConstraint(Sketcher.Constraint("Tangent", 2, 2, 3, 2))
sketch8.addConstraint(Sketcher.Constraint("Tangent", 3, 1, 4, 1))
sketch8.addConstraint(Sketcher.Constraint("Tangent", 4, 2, 5, 2))
sketch8.addConstraint(Sketcher.Constraint("Tangent", 5, 1, 6, 1))
sketch8.addConstraint(Sketcher.Constraint("Tangent", 6, 2, 7, 2))
sketch8.addConstraint(Sketcher.Constraint("Tangent", 7, 1, 8, 1))
sketch8.addConstraint(Sketcher.Constraint("Tangent", 8, 2, 9, 2))
sketch8.addConstraint(Sketcher.Constraint("Tangent", 9, 1, 10, 1))
sketch8.addConstraint(Sketcher.Constraint("Tangent", 10, 2, 11, 2))
sketch8.addConstraint(Sketcher.Constraint("Tangent", 11, 1, 0, 1))
sketch8.addConstraint(Sketcher.Constraint("Vertical", 0))
sketch8.addConstraint(Sketcher.Constraint("Horizontal", 2))
sketch8.addConstraint(Sketcher.Constraint("Vertical", 4))
sketch8.addConstraint(Sketcher.Constraint("Horizontal", 8))
sketch8.addConstraint(Sketcher.Constraint("Equal", 1, 3))
sketch8.addConstraint(Sketcher.Constraint("Equal", 3, 5))
sketch8.addConstraint(Sketcher.Constraint("Equal", 5, 7))
sketch8.addConstraint(Sketcher.Constraint("Equal", 7, 9))
sketch8.addConstraint(Sketcher.Constraint("Equal", 6, 10))
sketch8.addConstraint(Sketcher.Constraint("Equal", 9, 11))
sketch8.addConstraint(Sketcher.Constraint("Horizontal", 6, 3, 10, 3))
sketch8.addConstraint(Sketcher.Constraint("Horizontal", 5, 3, 11, 3))
sketch8.addConstraint(Sketcher.Constraint("Horizontal", 10, 3, 7, 1))
sketch8.addConstraint(Sketcher.Constraint("Vertical", 10, 3, 0, 2))
sketch8.addConstraint(Sketcher.Constraint("Radius", 1, Q("1 mm")))
sketch8.addConstraint(Sketcher.Constraint("Radius", 6, Q("2 mm")))
sketch8.addConstraint(Sketcher.Constraint("DistanceX", 2, 2, 2, 1, Q("67 mm")))
sketch8.addConstraint(Sketcher.Constraint("DistanceX", -1, 1, 1, 3, Q("261 mm")))
sketch8.addConstraint(Sketcher.Constraint("DistanceY", -1, 1, 6, 3, Q("180 mm")))
sketch8.addConstraint(Sketcher.Constraint("DistanceY", -1, 1, 1, 3, Q("185.35 mm")))
sketch8.setExpression("Constraints[26]", "Params.sketch8_radius")
sketch8.setExpression("Constraints[27]", "Params.sketch8_radius2")
sketch8.setExpression("Constraints[28]", "Params.sketch8_width")
pocket3 = doc.addObject("PartDesign::Pocket", "Pocket002")
body.addObject(pocket3)
pocket3.Profile = sketch8
pocket3.Type = "ThroughAll"

# Sketch on XY plane
sketch9 = doc.addObject("Sketcher::SketchObject", "Sketch008")
body.addObject(sketch9)
sketch9.AttachmentSupport = (doc.XY_Plane, [""])
sketch9.MapMode = "FlatFace"
sketch9.AttachmentOffset = App.Placement(Vector(0, 0, 3.175), App.Rotation())
sketch9.addGeometry(Part.LineSegment(Vector(130, 182.8, 0), Vector(130, 185.3, 0)), False)
sketch9.addGeometry(Part.ArcOfCircle(Part.Circle(Vector(131, 185.3, 0), Vector(0, 0, 1), 1), math.radians(90), math.radians(180)), False)
sketch9.addGeometry(Part.LineSegment(Vector(131, 186.3, 0), Vector(64, 186.3, 0)), False)
sketch9.addGeometry(Part.ArcOfCircle(Part.Circle(Vector(64, 185.3, 0), Vector(0, 0, 1), 1), math.radians(0), math.radians(90)), False)
sketch9.addGeometry(Part.LineSegment(Vector(65, 185.3, 0), Vector(65, 182.8, 0)), False)
sketch9.addGeometry(Part.ArcOfCircle(Part.Circle(Vector(64, 182.8, 0), Vector(0, 0, 1), 1), math.radians(-71), math.radians(0)), False)
sketch9.addGeometry(Part.ArcOfCircle(Part.Circle(Vector(65, 180, 0), Vector(0, 0, 1), 2), math.radians(109), math.radians(341)), False)
sketch9.addGeometry(Part.ArcOfCircle(Part.Circle(Vector(67.8, 179, 0), Vector(0, 0, 1), 1), math.radians(90), math.radians(161)), False)
sketch9.addGeometry(Part.LineSegment(Vector(67.8, 180, 0), Vector(127.2, 180, 0)), False)
sketch9.addGeometry(Part.ArcOfCircle(Part.Circle(Vector(127.2, 179, 0), Vector(0, 0, 1), 1), math.radians(19), math.radians(90)), False)
sketch9.addGeometry(Part.ArcOfCircle(Part.Circle(Vector(130, 180, 0), Vector(0, 0, 1), 2), math.radians(-161), math.radians(71)), False)
sketch9.addGeometry(Part.ArcOfCircle(Part.Circle(Vector(131, 182.8, 0), Vector(0, 0, 1), 1), math.radians(180), math.radians(251)), False)
sketch9.addConstraint(Sketcher.Constraint("Tangent", 0, 2, 1, 2))
sketch9.addConstraint(Sketcher.Constraint("Tangent", 1, 1, 2, 1))
sketch9.addConstraint(Sketcher.Constraint("Tangent", 2, 2, 3, 2))
sketch9.addConstraint(Sketcher.Constraint("Tangent", 3, 1, 4, 1))
sketch9.addConstraint(Sketcher.Constraint("Tangent", 4, 2, 5, 2))
sketch9.addConstraint(Sketcher.Constraint("Tangent", 5, 1, 6, 1))
sketch9.addConstraint(Sketcher.Constraint("Tangent", 6, 2, 7, 2))
sketch9.addConstraint(Sketcher.Constraint("Tangent", 7, 1, 8, 1))
sketch9.addConstraint(Sketcher.Constraint("Tangent", 8, 2, 9, 2))
sketch9.addConstraint(Sketcher.Constraint("Tangent", 9, 1, 10, 1))
sketch9.addConstraint(Sketcher.Constraint("Tangent", 10, 2, 11, 2))
sketch9.addConstraint(Sketcher.Constraint("Tangent", 11, 1, 0, 1))
sketch9.addConstraint(Sketcher.Constraint("Vertical", 0))
sketch9.addConstraint(Sketcher.Constraint("Horizontal", 2))
sketch9.addConstraint(Sketcher.Constraint("Vertical", 4))
sketch9.addConstraint(Sketcher.Constraint("Horizontal", 8))
sketch9.addConstraint(Sketcher.Constraint("Equal", 1, 3))
sketch9.addConstraint(Sketcher.Constraint("Equal", 3, 5))
sketch9.addConstraint(Sketcher.Constraint("Equal", 5, 7))
sketch9.addConstraint(Sketcher.Constraint("Equal", 7, 9))
sketch9.addConstraint(Sketcher.Constraint("Equal", 6, 10))
sketch9.addConstraint(Sketcher.Constraint("Equal", 9, 11))
sketch9.addConstraint(Sketcher.Constraint("Horizontal", 6, 3, 10, 3))
sketch9.addConstraint(Sketcher.Constraint("Horizontal", 5, 3, 11, 3))
sketch9.addConstraint(Sketcher.Constraint("Horizontal", 10, 3, 7, 1))
sketch9.addConstraint(Sketcher.Constraint("Vertical", 10, 3, 0, 2))
sketch9.addConstraint(Sketcher.Constraint("Radius", 1, Q("1 mm")))
sketch9.addConstraint(Sketcher.Constraint("Radius", 6, Q("2 mm")))
sketch9.addConstraint(Sketcher.Constraint("DistanceX", 2, 2, 2, 1, Q("67 mm")))
sketch9.addConstraint(Sketcher.Constraint("DistanceX", -1, 1, 1, 3, Q("131 mm")))
sketch9.addConstraint(Sketcher.Constraint("DistanceY", -1, 1, 6, 3, Q("180 mm")))
sketch9.addConstraint(Sketcher.Constraint("DistanceY", -1, 1, 1, 3, Q("185.35 mm")))
sketch9.setExpression("Constraints[26]", "Params.sketch9_radius")
sketch9.setExpression("Constraints[27]", "Params.sketch9_radius2")
sketch9.setExpression("Constraints[28]", "Params.sketch9_width")
pocket4 = doc.addObject("PartDesign::Pocket", "Pocket003")
body.addObject(pocket4)
pocket4.Profile = sketch9
pocket4.Type = "ThroughAll"
doc.recompute()

fillet2 = doc.addObject("PartDesign::Fillet", "Fillet001")
body.addObject(fillet2)
fillet2.Base = (pocket4, edges_at(pocket4, [
    (455, -6.35, 0),
    (0, -6.35, 0),
    (455, 186.35, 0),
    (0, 186.35, 0),
]))
fillet2.setExpression("Radius", "Params.fillet2_radius")

doc.recompute()
